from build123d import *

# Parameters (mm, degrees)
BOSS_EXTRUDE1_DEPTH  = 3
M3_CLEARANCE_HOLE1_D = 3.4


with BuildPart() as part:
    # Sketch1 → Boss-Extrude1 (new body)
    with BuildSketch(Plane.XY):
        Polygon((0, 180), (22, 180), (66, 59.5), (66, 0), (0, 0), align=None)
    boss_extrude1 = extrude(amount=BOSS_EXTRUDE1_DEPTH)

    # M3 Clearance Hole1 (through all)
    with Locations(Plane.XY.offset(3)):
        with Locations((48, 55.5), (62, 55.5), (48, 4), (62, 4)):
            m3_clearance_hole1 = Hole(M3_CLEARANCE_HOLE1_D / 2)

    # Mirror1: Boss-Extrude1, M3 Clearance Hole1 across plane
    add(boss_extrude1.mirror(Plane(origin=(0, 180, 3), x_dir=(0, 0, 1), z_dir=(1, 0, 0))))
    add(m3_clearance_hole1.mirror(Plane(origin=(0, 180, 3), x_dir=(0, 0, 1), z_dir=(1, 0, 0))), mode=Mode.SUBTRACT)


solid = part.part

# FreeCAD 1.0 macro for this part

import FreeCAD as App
import Part
import Sketcher
from FreeCAD import Vector
Q = App.Units.Quantity

doc = App.newDocument("Part")
body = doc.addObject("PartDesign::Body", "Body")

sketch1 = body.newObject("Sketcher::SketchObject", "Sketch")
sketch1.AttachmentSupport = (doc.getObject("XY_Plane"), [""])
sketch1.MapMode = "FlatFace"
sketch1.addGeometry([
    Part.LineSegment(Vector(22, 180, 0), Vector(0, 180, 0)),
    Part.LineSegment(Vector(0, 180, 0), Vector(0, 0, 0)),
    Part.LineSegment(Vector(0, 0, 0), Vector(66, 0, 0)),
    Part.LineSegment(Vector(66, 0, 0), Vector(66, 60, 0)),
    Part.LineSegment(Vector(66, 60, 0), Vector(22, 180, 0)),
], False)
sketch1.addConstraint([
    Sketcher.Constraint("Coincident", 0, 2, 1, 1),
    Sketcher.Constraint("Coincident", 1, 2, 2, 1),
    Sketcher.Constraint("Coincident", 2, 2, 3, 1),
    Sketcher.Constraint("Coincident", 3, 2, 4, 1),
    Sketcher.Constraint("Coincident", 4, 2, 0, 1),
    Sketcher.Constraint("Horizontal", 0),
    Sketcher.Constraint("Vertical", 1),
    Sketcher.Constraint("Horizontal", 2),
    Sketcher.Constraint("Vertical", 3),
    Sketcher.Constraint("Coincident", 1, 2, -1, 1),
    Sketcher.Constraint("DistanceX", 0, 2, 0, 1, Q("22 mm")),
    Sketcher.Constraint("DistanceX", 2, 1, 2, 2, Q("66 mm")),
    Sketcher.Constraint("DistanceY", 1, 2, 1, 1, Q("180 mm")),
    Sketcher.Constraint("DistanceY", 3, 1, 3, 2, Q("59.5 mm")),
])
pad1 = body.newObject("PartDesign::Pad", "Pad")
pad1.Profile = sketch1
pad1.Length = 3

sketch2 = body.newObject("Sketcher::SketchObject", "Sketch001")
sketch2.AttachmentSupport = (doc.getObject("XY_Plane"), [""])
sketch2.MapMode = "FlatFace"
sketch2.AttachmentOffset = App.Placement(Vector(0, 0, 3), App.Rotation())
sketch2.addGeometry([
    Part.Circle(Vector(48, 55.5, 0), Vector(0, 0, 1), 1.7),
    Part.Circle(Vector(62, 55.5, 0), Vector(0, 0, 1), 1.7),
    Part.Circle(Vector(48, 4, 0), Vector(0, 0, 1), 1.7),
    Part.Circle(Vector(62, 4, 0), Vector(0, 0, 1), 1.7),
], False)
sketch2.addConstraint([
    Sketcher.Constraint("Equal", 0, 1),
    Sketcher.Constraint("Equal", 1, 2),
    Sketcher.Constraint("Equal", 2, 3),
    Sketcher.Constraint("Horizontal", 0, 3, 1, 3),
    Sketcher.Constraint("Horizontal", 2, 3, 3, 3),
    Sketcher.Constraint("Vertical", 0, 3, 2, 3),
    Sketcher.Constraint("Vertical", 1, 3, 3, 3),
    Sketcher.Constraint("Diameter", 0, Q("3.4 mm")),
    Sketcher.Constraint("DistanceX", -1, 1, 0, 3, Q("48 mm")),
    Sketcher.Constraint("DistanceX", -1, 1, 1, 3, Q("62 mm")),
    Sketcher.Constraint("DistanceY", -1, 1, 2, 3, Q("4 mm")),
    Sketcher.Constraint("DistanceY", -1, 1, 0, 3, Q("55.5 mm")),
])
doc.recompute()
hole = body.newObject("PartDesign::Hole", "Hole")
hole.Profile = sketch2
hole.ThreadType = "None"
hole.Diameter = 3.4
hole.DepthType = "ThroughAll"
doc.recompute()

mirrored = body.newObject("PartDesign::Mirrored", "Mirrored")
mirrored.Originals = [pad1, hole]
mirrored.MirrorPlane = (doc.getObject("YZ_Plane"), [""])
body.Tip = mirrored

doc.recompute()
